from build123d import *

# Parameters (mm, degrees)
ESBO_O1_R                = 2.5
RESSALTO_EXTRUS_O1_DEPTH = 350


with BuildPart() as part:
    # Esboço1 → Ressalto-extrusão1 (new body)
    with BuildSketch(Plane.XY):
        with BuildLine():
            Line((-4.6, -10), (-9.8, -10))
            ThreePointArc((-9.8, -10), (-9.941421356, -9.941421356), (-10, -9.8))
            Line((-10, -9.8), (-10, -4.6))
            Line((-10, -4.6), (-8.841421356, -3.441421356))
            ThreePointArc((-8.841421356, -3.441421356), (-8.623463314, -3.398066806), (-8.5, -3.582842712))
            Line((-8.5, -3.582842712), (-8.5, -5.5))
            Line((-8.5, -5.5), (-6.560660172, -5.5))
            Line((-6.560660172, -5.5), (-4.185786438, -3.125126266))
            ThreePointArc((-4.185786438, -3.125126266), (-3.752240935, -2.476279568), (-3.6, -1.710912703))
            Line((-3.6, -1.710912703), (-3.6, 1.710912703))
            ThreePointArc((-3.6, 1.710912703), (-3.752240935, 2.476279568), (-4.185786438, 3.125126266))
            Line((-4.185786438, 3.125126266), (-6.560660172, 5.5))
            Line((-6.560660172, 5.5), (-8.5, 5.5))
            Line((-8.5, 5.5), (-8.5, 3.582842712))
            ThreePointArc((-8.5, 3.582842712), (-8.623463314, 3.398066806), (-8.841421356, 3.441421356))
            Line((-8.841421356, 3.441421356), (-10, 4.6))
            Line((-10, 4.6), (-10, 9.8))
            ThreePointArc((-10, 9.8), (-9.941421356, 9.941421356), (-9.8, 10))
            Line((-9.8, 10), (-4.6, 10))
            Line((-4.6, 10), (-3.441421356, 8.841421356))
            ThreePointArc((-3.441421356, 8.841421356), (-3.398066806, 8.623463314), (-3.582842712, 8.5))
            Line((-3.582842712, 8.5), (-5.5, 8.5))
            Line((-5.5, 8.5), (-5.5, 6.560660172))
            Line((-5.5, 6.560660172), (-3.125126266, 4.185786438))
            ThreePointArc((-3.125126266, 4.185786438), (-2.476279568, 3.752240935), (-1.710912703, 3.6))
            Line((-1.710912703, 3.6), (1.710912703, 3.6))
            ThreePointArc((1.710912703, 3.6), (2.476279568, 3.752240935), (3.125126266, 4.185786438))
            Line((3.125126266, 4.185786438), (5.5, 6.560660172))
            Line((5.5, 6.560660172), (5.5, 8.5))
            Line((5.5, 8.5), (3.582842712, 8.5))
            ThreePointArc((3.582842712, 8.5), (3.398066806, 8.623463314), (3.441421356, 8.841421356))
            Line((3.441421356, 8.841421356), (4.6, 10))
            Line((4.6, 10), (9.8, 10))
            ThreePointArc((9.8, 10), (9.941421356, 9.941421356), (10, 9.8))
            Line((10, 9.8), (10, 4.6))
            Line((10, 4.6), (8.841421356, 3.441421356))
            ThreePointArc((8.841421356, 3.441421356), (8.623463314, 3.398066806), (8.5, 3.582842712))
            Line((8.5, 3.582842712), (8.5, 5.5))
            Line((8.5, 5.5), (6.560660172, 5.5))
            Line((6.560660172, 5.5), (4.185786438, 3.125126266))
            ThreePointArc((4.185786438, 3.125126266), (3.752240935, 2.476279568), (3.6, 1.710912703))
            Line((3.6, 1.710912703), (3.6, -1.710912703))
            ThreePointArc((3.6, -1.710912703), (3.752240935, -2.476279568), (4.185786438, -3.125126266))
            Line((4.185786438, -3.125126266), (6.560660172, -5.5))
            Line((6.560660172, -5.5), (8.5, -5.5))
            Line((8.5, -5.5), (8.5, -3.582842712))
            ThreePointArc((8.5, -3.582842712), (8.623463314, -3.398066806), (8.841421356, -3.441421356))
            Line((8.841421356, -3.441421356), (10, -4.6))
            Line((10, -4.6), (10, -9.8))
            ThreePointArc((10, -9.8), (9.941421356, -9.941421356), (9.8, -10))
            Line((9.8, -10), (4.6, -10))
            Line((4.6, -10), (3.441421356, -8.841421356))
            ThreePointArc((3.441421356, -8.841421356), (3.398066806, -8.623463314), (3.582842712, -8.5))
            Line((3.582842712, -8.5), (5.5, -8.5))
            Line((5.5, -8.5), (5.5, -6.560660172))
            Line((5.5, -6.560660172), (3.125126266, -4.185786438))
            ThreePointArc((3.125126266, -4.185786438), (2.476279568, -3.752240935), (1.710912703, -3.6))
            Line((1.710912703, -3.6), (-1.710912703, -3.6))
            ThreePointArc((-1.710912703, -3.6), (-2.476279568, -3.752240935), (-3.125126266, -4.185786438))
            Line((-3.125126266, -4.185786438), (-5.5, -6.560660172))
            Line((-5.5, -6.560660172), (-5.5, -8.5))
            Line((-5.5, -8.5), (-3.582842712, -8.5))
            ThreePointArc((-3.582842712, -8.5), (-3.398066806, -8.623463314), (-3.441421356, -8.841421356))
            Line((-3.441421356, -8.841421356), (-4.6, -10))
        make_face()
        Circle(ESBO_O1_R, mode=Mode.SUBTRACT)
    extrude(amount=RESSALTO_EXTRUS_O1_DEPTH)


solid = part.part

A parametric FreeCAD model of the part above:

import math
import FreeCAD as App
import Part
import Sketcher
from FreeCAD import Vector

doc = App.newDocument("Part")
params = doc.addObject("Spreadsheet::Sheet", "Params")
for row, (alias, value) in enumerate([
    ("sketch1_diameter", "5 mm"),
    ("sketch1_radius", "2 mm"),
    ("sketch1_radius2", "0.2 mm"),
    ("sketch1_width", "5.2 mm"),
    ("pad1_length", "350 mm"),
], start=1):
    params.set(f"A{row}", alias)
    params.set(f"B{row}", "=" + value)
    params.setAlias(f"B{row}", alias)

body = doc.addObject("PartDesign::Body", "Body")

# Sketch on XY plane
sketch1 = doc.addObject("Sketcher::SketchObject", "Sketch")
body.addObject(sketch1)
sketch1.AttachmentSupport = (doc.XY_Plane, [""])
sketch1.MapMode = "FlatFace"
sketch1.addGeometry([
    Part.LineSegment(Vector(-9.8, -10, 0), Vector(-4.6, -10, 0)),  # 0
    Part.LineSegment(Vector(-4.6, -10, 0), Vector(-3.44, -8.84, 0)),  # 1
    Part.ArcOfCircle(Part.Circle(Vector(-3.58, -8.7, 0), Vector(0, 0, 1), 0.2), math.radians(-45), math.radians(90)),  # 2
    Part.LineSegment(Vector(-3.58, -8.5, 0), Vector(-5.5, -8.5, 0)),  # 3
    Part.LineSegment(Vector(-5.5, -8.5, 0), Vector(-5.5, -6.56, 0)),  # 4
    Part.LineSegment(Vector(-5.5, -6.56, 0), Vector(-3.13, -4.19, 0)),  # 5
    Part.ArcOfCircle(Part.Circle(Vector(-1.71, -5.6, 0), Vector(0, 0, 1), 2), math.radians(90), math.radians(135)),  # 6
    Part.LineSegment(Vector(-1.71, -3.6, 0), Vector(1.71, -3.6, 0)),  # 7
    Part.ArcOfCircle(Part.Circle(Vector(1.71, -5.6, 0), Vector(0, 0, 1), 2), math.radians(45), math.radians(90)),  # 8
    Part.LineSegment(Vector(3.13, -4.19, 0), Vector(5.5, -6.56, 0)),  # 9
    Part.LineSegment(Vector(5.5, -6.56, 0), Vector(5.5, -8.5, 0)),  # 10
    Part.LineSegment(Vector(5.5, -8.5, 0), Vector(3.58, -8.5, 0)),  # 11
    Part.ArcOfCircle(Part.Circle(Vector(3.58, -8.7, 0), Vector(0, 0, 1), 0.2), math.radians(90), math.radians(225)),  # 12
    Part.LineSegment(Vector(3.44, -8.84, 0), Vector(4.6, -10, 0)),  # 13
    Part.LineSegment(Vector(4.6, -10, 0), Vector(9.8, -10, 0)),  # 14
    Part.ArcOfCircle(Part.Circle(Vector(9.8, -9.8, 0), Vector(0, 0, 1), 0.2), math.radians(-90), math.radians(0)),  # 15
    Part.LineSegment(Vector(10, -9.8, 0), Vector(10, -4.6, 0)),  # 16
    Part.LineSegment(Vector(10, -4.6, 0), Vector(8.84, -3.44, 0)),  # 17
    Part.ArcOfCircle(Part.Circle(Vector(8.7, -3.58, 0), Vector(0, 0, 1), 0.2), math.radians(45), math.radians(180)),  # 18
    Part.LineSegment(Vector(8.5, -3.58, 0), Vector(8.5, -5.5, 0)),  # 19
    Part.LineSegment(Vector(8.5, -5.5, 0), Vector(6.56, -5.5, 0)),  # 20
    Part.LineSegment(Vector(6.56, -5.5, 0), Vector(4.19, -3.13, 0)),  # 21
    Part.ArcOfCircle(Part.Circle(Vector(5.6, -1.71, 0), Vector(0, 0, 1), 2), math.radians(180), math.radians(225)),  # 22
    Part.LineSegment(Vector(3.6, -1.71, 0), Vector(3.6, 1.71, 0)),  # 23
    Part.ArcOfCircle(Part.Circle(Vector(5.6, 1.71, 0), Vector(0, 0, 1), 2), math.radians(135), math.radians(180)),  # 24
    Part.LineSegment(Vector(4.19, 3.13, 0), Vector(6.56, 5.5, 0)),  # 25
    Part.LineSegment(Vector(6.56, 5.5, 0), Vector(8.5, 5.5, 0)),  # 26
    Part.LineSegment(Vector(8.5, 5.5, 0), Vector(8.5, 3.58, 0)),  # 27
    Part.ArcOfCircle(Part.Circle(Vector(8.7, 3.58, 0), Vector(0, 0, 1), 0.2), math.radians(-180), math.radians(-45)),  # 28
    Part.LineSegment(Vector(8.84, 3.44, 0), Vector(10, 4.6, 0)),  # 29
    Part.LineSegment(Vector(10, 4.6, 0), Vector(10, 9.8, 0)),  # 30
    Part.ArcOfCircle(Part.Circle(Vector(9.8, 9.8, 0), Vector(0, 0, 1), 0.2), math.radians(0), math.radians(90)),  # 31
    Part.LineSegment(Vector(9.8, 10, 0), Vector(4.6, 10, 0)),  # 32
    Part.LineSegment(Vector(4.6, 10, 0), Vector(3.44, 8.84, 0)),  # 33
    Part.ArcOfCircle(Part.Circle(Vector(3.58, 8.7, 0), Vector(0, 0, 1), 0.2), math.radians(135), math.radians(270)),  # 34
    Part.LineSegment(Vector(3.58, 8.5, 0), Vector(5.5, 8.5, 0)),  # 35
    Part.LineSegment(Vector(5.5, 8.5, 0), Vector(5.5, 6.56, 0)),  # 36
    Part.LineSegment(Vector(5.5, 6.56, 0), Vector(3.13, 4.19, 0)),  # 37
    Part.ArcOfCircle(Part.Circle(Vector(1.71, 5.6, 0), Vector(0, 0, 1), 2), math.radians(-90), math.radians(-45)),  # 38
    Part.LineSegment(Vector(1.71, 3.6, 0), Vector(-1.71, 3.6, 0)),  # 39
    Part.ArcOfCircle(Part.Circle(Vector(-1.71, 5.6, 0), Vector(0, 0, 1), 2), math.radians(-135), math.radians(-90)),  # 40
    Part.LineSegment(Vector(-3.13, 4.19, 0), Vector(-5.5, 6.56, 0)),  # 41
    Part.LineSegment(Vector(-5.5, 6.56, 0), Vector(-5.5, 8.5, 0)),  # 42
    Part.LineSegment(Vector(-5.5, 8.5, 0), Vector(-3.58, 8.5, 0)),  # 43
    Part.ArcOfCircle(Part.Circle(Vector(-3.58, 8.7, 0), Vector(0, 0, 1), 0.2), math.radians(-90), math.radians(45)),  # 44
    Part.LineSegment(Vector(-3.44, 8.84, 0), Vector(-4.6, 10, 0)),  # 45
    Part.LineSegment(Vector(-4.6, 10, 0), Vector(-9.8, 10, 0)),  # 46
    Part.ArcOfCircle(Part.Circle(Vector(-9.8, 9.8, 0), Vector(0, 0, 1), 0.2), math.radians(90), math.radians(180)),  # 47
    Part.LineSegment(Vector(-10, 9.8, 0), Vector(-10, 4.6, 0)),  # 48
    Part.LineSegment(Vector(-10, 4.6, 0), Vector(-8.84, 3.44, 0)),  # 49
    Part.ArcOfCircle(Part.Circle(Vector(-8.7, 3.58, 0), Vector(0, 0, 1), 0.2), math.radians(-135), math.radians(0)),  # 50
    Part.LineSegment(Vector(-8.5, 3.58, 0), Vector(-8.5, 5.5, 0)),  # 51
    Part.LineSegment(Vector(-8.5, 5.5, 0), Vector(-6.56, 5.5, 0)),  # 52
    Part.LineSegment(Vector(-6.56, 5.5, 0), Vector(-4.19, 3.13, 0)),  # 53
    Part.ArcOfCircle(Part.Circle(Vector(-5.6, 1.71, 0), Vector(0, 0, 1), 2), math.radians(0), math.radians(45)),  # 54
    Part.LineSegment(Vector(-3.6, 1.71, 0), Vector(-3.6, -1.71, 0)),  # 55
    Part.ArcOfCircle(Part.Circle(Vector(-5.6, -1.71, 0), Vector(0, 0, 1), 2), math.radians(-45), math.radians(0)),  # 56
    Part.LineSegment(Vector(-4.19, -3.13, 0), Vector(-6.56, -5.5, 0)),  # 57
    Part.LineSegment(Vector(-6.56, -5.5, 0), Vector(-8.5, -5.5, 0)),  # 58
    Part.LineSegment(Vector(-8.5, -5.5, 0), Vector(-8.5, -3.58, 0)),  # 59
    Part.ArcOfCircle(Part.Circle(Vector(-8.7, -3.58, 0), Vector(0, 0, 1), 0.2), math.radians(0), math.radians(135)),  # 60
    Part.LineSegment(Vector(-8.84, -3.44, 0), Vector(-10, -4.6, 0)),  # 61
    Part.LineSegment(Vector(-10, -4.6, 0), Vector(-10, -9.8, 0)),  # 62
    Part.ArcOfCircle(Part.Circle(Vector(-9.8, -9.8, 0), Vector(0, 0, 1), 0.2), math.radians(-180), math.radians(-90)),  # 63
    Part.Circle(Vector(0, 0, 0), Vector(0, 0, 1), 2.5),  # 64
], False)
sketch1.addConstraint([
    Sketcher.Constraint("Coincident", 0, 2, 1, 1),
    Sketcher.Constraint("Tangent", 1, 2, 2, 1),
    Sketcher.Constraint("Tangent", 2, 2, 3, 1),
    Sketcher.Constraint("Coincident", 3, 2, 4, 1),
    Sketcher.Constraint("Coincident", 4, 2, 5, 1),
    Sketcher.Constraint("Tangent", 5, 2, 6, 2),
    Sketcher.Constraint("Tangent", 6, 1, 7, 1),
    Sketcher.Constraint("Tangent", 7, 2, 8, 2),
    Sketcher.Constraint("Tangent", 8, 1, 9, 1),
    Sketcher.Constraint("Coincident", 9, 2, 10, 1),
    Sketcher.Constraint("Coincident", 10, 2, 11, 1),
    Sketcher.Constraint("Tangent", 11, 2, 12, 1),
    Sketcher.Constraint("Tangent", 12, 2, 13, 1),
    Sketcher.Constraint("Coincident", 13, 2, 14, 1),
    Sketcher.Constraint("Tangent", 14, 2, 15, 1),
    Sketcher.Constraint("Tangent", 15, 2, 16, 1),
    Sketcher.Constraint("Coincident", 16, 2, 17, 1),
    Sketcher.Constraint("Tangent", 17, 2, 18, 1),
    Sketcher.Constraint("Tangent", 18, 2, 19, 1),
    Sketcher.Constraint("Coincident", 19, 2, 20, 1),
    Sketcher.Constraint("Coincident", 20, 2, 21, 1),
    Sketcher.Constraint("Tangent", 21, 2, 22, 2),
    Sketcher.Constraint("Tangent", 22, 1, 23, 1),
    Sketcher.Constraint("Tangent", 23, 2, 24, 2),
    Sketcher.Constraint("Tangent", 24, 1, 25, 1),
    Sketcher.Constraint("Coincident", 25, 2, 26, 1),
    Sketcher.Constraint("Coincident", 26, 2, 27, 1),
    Sketcher.Constraint("Tangent", 27, 2, 28, 1),
    Sketcher.Constraint("Tangent", 28, 2, 29, 1),
    Sketcher.Constraint("Coincident", 29, 2, 30, 1),
    Sketcher.Constraint("Tangent", 30, 2, 31, 1),
    Sketcher.Constraint("Tangent", 31, 2, 32, 1),
    Sketcher.Constraint("Coincident", 32, 2, 33, 1),
    Sketcher.Constraint("Tangent", 33, 2, 34, 1),
    Sketcher.Constraint("Tangent", 34, 2, 35, 1),
    Sketcher.Constraint("Coincident", 35, 2, 36, 1),
    Sketcher.Constraint("Coincident", 36, 2, 37, 1),
    Sketcher.Constraint("Tangent", 37, 2, 38, 2),
    Sketcher.Constraint("Tangent", 38, 1, 39, 1),
    Sketcher.Constraint("Tangent", 39, 2, 40, 2),
    Sketcher.Constraint("Tangent", 40, 1, 41, 1),
    Sketcher.Constraint("Coincident", 41, 2, 42, 1),
    Sketcher.Constraint("Coincident", 42, 2, 43, 1),
    Sketcher.Constraint("Tangent", 43, 2, 44, 1),
    Sketcher.Constraint("Tangent", 44, 2, 45, 1),
    Sketcher.Constraint("Coincident", 45, 2, 46, 1),
    Sketcher.Constraint("Tangent", 46, 2, 47, 1),
    Sketcher.Constraint("Tangent", 47, 2, 48, 1),
    Sketcher.Constraint("Coincident", 48, 2, 49, 1),
    Sketcher.Constraint("Tangent", 49, 2, 50, 1),
    Sketcher.Constraint("Tangent", 50, 2, 51, 1),
    Sketcher.Constraint("Coincident", 51, 2, 52, 1),
    Sketcher.Constraint("Coincident", 52, 2, 53, 1),
    Sketcher.Constraint("Tangent", 53, 2, 54, 2),
    Sketcher.Constraint("Tangent", 54, 1, 55, 1),
    Sketcher.Constraint("Tangent", 55, 2, 56, 2),
    Sketcher.Constraint("Tangent", 56, 1, 57, 1),
    Sketcher.Constraint("Coincident", 57, 2, 58, 1),
    Sketcher.Constraint("Coincident", 58, 2, 59, 1),
    Sketcher.Constraint("Tangent", 59, 2, 60, 1),
    Sketcher.Constraint("Tangent", 60, 2, 61, 1),
    Sketcher.Constraint("Coincident", 61, 2, 62, 1),
    Sketcher.Constraint("Tangent", 62, 2, 63, 1),
    Sketcher.Constraint("Tangent", 63, 2, 0, 1),
    Sketcher.Constraint("Horizontal", 0),
    Sketcher.Constraint("Horizontal", 3),
    Sketcher.Constraint("Vertical", 4),
    Sketcher.Constraint("Horizontal", 7),
    Sketcher.Constraint("Vertical", 10),
    Sketcher.Constraint("Horizontal", 11),
    Sketcher.Constraint("Horizontal", 14),
    Sketcher.Constraint("Vertical", 16),
    Sketcher.Constraint("Vertical", 19),
    Sketcher.Constraint("Horizontal", 20),
    Sketcher.Constraint("Vertical", 23),
    Sketcher.Constraint("Horizontal", 26),
    Sketcher.Constraint("Vertical", 27),
    Sketcher.Constraint("Vertical", 30),
    Sketcher.Constraint("Horizontal", 32),
    Sketcher.Constraint("Horizontal", 35),
    Sketcher.Constraint("Vertical", 36),
    Sketcher.Constraint("Horizontal", 39),
    Sketcher.Constraint("Vertical", 42),
    Sketcher.Constraint("Horizontal", 43),
    Sketcher.Constraint("Horizontal", 46),
    Sketcher.Constraint("Vertical", 48),
    Sketcher.Constraint("Vertical", 51),
    Sketcher.Constraint("Horizontal", 52),
    Sketcher.Constraint("Vertical", 55),
    Sketcher.Constraint("Horizontal", 58),
    Sketcher.Constraint("Vertical", 59),
    Sketcher.Constraint("Vertical", 62),
    Sketcher.Constraint("Coincident", 64, 3, -1, 1),
    Sketcher.Constraint("Equal", 6, 8),
    Sketcher.Constraint("Equal", 2, 12),
    Sketcher.Constraint("Equal", 12, 15),
    Sketcher.Constraint("Equal", 15, 18),
    Sketcher.Constraint("Equal", 8, 22),
    Sketcher.Constraint("Equal", 22, 24),
    Sketcher.Constraint("Equal", 18, 28),
    Sketcher.Constraint("Equal", 28, 31),
    Sketcher.Constraint("Equal", 31, 34),
    Sketcher.Constraint("Equal", 24, 38),
    Sketcher.Constraint("Equal", 38, 40),
    Sketcher.Constraint("Equal", 34, 44),
    Sketcher.Constraint("Equal", 44, 47),
    Sketcher.Constraint("Equal", 47, 50),
    Sketcher.Constraint("Equal", 40, 54),
    Sketcher.Constraint("Equal", 54, 56),
    Sketcher.Constraint("Equal", 50, 60),
    Sketcher.Constraint("Equal", 60, 63),
    Sketcher.Constraint("Symmetric", 2, 3, 34, 3, -1, 1),
    Sketcher.Constraint("Symmetric", 6, 3, 38, 3, -1, 1),
    Sketcher.Constraint("Symmetric", 12, 3, 44, 3, -1, 1),
    Sketcher.Constraint("Symmetric", 15, 3, 47, 3, -1, 1),
    Sketcher.Constraint("Symmetric", 18, 3, 50, 3, -1, 1),
    Sketcher.Constraint("Symmetric", 22, 3, 54, 3, -1, 1),
    Sketcher.Constraint("Symmetric", 28, 3, 60, 3, -1, 1),
    Sketcher.Constraint("Symmetric", 31, 3, 63, 3, -1, 1),
    Sketcher.Constraint("Symmetric", 4, 2, 36, 2, -1, 1),
    Sketcher.Constraint("Symmetric", 8, 1, 40, 1, -1, 1),
    Sketcher.Constraint("Symmetric", 20, 2, 52, 2, -1, 1),
    Sketcher.Constraint("Symmetric", 24, 1, 56, 1, -1, 1),
    Sketcher.Constraint("Symmetric", 2, 3, 12, 3, -2),
    Sketcher.Constraint("Symmetric", 31, 3, 47, 3, -2),
    Sketcher.Constraint("Symmetric", 28, 3, 50, 3, -2),
    Sketcher.Constraint("Symmetric", 5, 2, 8, 1, -2),
    Sketcher.Constraint("Symmetric", 25, 2, 52, 2, -2),
    Sketcher.Constraint("Parallel", 1, 5),
    Sketcher.Constraint("Perpendicular", 5, 9),
    Sketcher.Constraint("Parallel", 9, 13),
    Sketcher.Constraint("Parallel", 13, 17),
    Sketcher.Constraint("Parallel", 17, 21),
    Sketcher.Constraint("Perpendicular", 21, 25),
    Sketcher.Constraint("Parallel", 25, 29),
    Sketcher.Constraint("Parallel", 29, 33),
    Sketcher.Constraint("Parallel", 41, 45),
    Sketcher.Constraint("Parallel", 45, 49),
    Sketcher.Constraint("Parallel", 57, 61),
    Sketcher.Constraint("Horizontal", 4, 2, 9, 2),
    Sketcher.Constraint("Horizontal", 36, 2, 41, 2),
    Sketcher.Constraint("Horizontal", 20, 2, 57, 2),
    Sketcher.Constraint("Equal", 58, 4),
    Sketcher.Constraint("Equal", 46, 16),
    Sketcher.Constraint("Equal", 43, 19),
    Sketcher.Constraint("Equal", 39, 23),
    Sketcher.Constraint("Equal", 13, 17),
    Sketcher.Constraint("Equal", 9, 21),
    Sketcher.Constraint("Diameter", 64, 5.0),
    Sketcher.Constraint("Radius", 6, 2.0),
    Sketcher.Constraint("Radius", 2, 0.2),
    Sketcher.Constraint("DistanceX", 0, 1, 0, 2, 5.2),
    Sketcher.Constraint("DistanceY", 0, 2, -1, 1, 10.0),
    Sketcher.Constraint("DistanceY", 2, 3, -1, 1, 8.7),
    Sketcher.Constraint("DistanceY", 6, 3, -1, 1, 5.6),
    Sketcher.Constraint("DistanceX", 3, 2, -1, 1, 5.5),
    Sketcher.Constraint("DistanceX", 20, 2, 20, 1, 1.93934),
])
sketch1.setExpression("Constraints[148]", "Params.sketch1_diameter")
sketch1.setExpression("Constraints[149]", "Params.sketch1_radius")
sketch1.setExpression("Constraints[150]", "Params.sketch1_radius2")
sketch1.setExpression("Constraints[151]", "Params.sketch1_width")
pad1 = doc.addObject("PartDesign::Pad", "Pad")
body.addObject(pad1)
pad1.Profile = sketch1
pad1.setExpression("Length", "Params.pad1_length")

doc.recompute()
